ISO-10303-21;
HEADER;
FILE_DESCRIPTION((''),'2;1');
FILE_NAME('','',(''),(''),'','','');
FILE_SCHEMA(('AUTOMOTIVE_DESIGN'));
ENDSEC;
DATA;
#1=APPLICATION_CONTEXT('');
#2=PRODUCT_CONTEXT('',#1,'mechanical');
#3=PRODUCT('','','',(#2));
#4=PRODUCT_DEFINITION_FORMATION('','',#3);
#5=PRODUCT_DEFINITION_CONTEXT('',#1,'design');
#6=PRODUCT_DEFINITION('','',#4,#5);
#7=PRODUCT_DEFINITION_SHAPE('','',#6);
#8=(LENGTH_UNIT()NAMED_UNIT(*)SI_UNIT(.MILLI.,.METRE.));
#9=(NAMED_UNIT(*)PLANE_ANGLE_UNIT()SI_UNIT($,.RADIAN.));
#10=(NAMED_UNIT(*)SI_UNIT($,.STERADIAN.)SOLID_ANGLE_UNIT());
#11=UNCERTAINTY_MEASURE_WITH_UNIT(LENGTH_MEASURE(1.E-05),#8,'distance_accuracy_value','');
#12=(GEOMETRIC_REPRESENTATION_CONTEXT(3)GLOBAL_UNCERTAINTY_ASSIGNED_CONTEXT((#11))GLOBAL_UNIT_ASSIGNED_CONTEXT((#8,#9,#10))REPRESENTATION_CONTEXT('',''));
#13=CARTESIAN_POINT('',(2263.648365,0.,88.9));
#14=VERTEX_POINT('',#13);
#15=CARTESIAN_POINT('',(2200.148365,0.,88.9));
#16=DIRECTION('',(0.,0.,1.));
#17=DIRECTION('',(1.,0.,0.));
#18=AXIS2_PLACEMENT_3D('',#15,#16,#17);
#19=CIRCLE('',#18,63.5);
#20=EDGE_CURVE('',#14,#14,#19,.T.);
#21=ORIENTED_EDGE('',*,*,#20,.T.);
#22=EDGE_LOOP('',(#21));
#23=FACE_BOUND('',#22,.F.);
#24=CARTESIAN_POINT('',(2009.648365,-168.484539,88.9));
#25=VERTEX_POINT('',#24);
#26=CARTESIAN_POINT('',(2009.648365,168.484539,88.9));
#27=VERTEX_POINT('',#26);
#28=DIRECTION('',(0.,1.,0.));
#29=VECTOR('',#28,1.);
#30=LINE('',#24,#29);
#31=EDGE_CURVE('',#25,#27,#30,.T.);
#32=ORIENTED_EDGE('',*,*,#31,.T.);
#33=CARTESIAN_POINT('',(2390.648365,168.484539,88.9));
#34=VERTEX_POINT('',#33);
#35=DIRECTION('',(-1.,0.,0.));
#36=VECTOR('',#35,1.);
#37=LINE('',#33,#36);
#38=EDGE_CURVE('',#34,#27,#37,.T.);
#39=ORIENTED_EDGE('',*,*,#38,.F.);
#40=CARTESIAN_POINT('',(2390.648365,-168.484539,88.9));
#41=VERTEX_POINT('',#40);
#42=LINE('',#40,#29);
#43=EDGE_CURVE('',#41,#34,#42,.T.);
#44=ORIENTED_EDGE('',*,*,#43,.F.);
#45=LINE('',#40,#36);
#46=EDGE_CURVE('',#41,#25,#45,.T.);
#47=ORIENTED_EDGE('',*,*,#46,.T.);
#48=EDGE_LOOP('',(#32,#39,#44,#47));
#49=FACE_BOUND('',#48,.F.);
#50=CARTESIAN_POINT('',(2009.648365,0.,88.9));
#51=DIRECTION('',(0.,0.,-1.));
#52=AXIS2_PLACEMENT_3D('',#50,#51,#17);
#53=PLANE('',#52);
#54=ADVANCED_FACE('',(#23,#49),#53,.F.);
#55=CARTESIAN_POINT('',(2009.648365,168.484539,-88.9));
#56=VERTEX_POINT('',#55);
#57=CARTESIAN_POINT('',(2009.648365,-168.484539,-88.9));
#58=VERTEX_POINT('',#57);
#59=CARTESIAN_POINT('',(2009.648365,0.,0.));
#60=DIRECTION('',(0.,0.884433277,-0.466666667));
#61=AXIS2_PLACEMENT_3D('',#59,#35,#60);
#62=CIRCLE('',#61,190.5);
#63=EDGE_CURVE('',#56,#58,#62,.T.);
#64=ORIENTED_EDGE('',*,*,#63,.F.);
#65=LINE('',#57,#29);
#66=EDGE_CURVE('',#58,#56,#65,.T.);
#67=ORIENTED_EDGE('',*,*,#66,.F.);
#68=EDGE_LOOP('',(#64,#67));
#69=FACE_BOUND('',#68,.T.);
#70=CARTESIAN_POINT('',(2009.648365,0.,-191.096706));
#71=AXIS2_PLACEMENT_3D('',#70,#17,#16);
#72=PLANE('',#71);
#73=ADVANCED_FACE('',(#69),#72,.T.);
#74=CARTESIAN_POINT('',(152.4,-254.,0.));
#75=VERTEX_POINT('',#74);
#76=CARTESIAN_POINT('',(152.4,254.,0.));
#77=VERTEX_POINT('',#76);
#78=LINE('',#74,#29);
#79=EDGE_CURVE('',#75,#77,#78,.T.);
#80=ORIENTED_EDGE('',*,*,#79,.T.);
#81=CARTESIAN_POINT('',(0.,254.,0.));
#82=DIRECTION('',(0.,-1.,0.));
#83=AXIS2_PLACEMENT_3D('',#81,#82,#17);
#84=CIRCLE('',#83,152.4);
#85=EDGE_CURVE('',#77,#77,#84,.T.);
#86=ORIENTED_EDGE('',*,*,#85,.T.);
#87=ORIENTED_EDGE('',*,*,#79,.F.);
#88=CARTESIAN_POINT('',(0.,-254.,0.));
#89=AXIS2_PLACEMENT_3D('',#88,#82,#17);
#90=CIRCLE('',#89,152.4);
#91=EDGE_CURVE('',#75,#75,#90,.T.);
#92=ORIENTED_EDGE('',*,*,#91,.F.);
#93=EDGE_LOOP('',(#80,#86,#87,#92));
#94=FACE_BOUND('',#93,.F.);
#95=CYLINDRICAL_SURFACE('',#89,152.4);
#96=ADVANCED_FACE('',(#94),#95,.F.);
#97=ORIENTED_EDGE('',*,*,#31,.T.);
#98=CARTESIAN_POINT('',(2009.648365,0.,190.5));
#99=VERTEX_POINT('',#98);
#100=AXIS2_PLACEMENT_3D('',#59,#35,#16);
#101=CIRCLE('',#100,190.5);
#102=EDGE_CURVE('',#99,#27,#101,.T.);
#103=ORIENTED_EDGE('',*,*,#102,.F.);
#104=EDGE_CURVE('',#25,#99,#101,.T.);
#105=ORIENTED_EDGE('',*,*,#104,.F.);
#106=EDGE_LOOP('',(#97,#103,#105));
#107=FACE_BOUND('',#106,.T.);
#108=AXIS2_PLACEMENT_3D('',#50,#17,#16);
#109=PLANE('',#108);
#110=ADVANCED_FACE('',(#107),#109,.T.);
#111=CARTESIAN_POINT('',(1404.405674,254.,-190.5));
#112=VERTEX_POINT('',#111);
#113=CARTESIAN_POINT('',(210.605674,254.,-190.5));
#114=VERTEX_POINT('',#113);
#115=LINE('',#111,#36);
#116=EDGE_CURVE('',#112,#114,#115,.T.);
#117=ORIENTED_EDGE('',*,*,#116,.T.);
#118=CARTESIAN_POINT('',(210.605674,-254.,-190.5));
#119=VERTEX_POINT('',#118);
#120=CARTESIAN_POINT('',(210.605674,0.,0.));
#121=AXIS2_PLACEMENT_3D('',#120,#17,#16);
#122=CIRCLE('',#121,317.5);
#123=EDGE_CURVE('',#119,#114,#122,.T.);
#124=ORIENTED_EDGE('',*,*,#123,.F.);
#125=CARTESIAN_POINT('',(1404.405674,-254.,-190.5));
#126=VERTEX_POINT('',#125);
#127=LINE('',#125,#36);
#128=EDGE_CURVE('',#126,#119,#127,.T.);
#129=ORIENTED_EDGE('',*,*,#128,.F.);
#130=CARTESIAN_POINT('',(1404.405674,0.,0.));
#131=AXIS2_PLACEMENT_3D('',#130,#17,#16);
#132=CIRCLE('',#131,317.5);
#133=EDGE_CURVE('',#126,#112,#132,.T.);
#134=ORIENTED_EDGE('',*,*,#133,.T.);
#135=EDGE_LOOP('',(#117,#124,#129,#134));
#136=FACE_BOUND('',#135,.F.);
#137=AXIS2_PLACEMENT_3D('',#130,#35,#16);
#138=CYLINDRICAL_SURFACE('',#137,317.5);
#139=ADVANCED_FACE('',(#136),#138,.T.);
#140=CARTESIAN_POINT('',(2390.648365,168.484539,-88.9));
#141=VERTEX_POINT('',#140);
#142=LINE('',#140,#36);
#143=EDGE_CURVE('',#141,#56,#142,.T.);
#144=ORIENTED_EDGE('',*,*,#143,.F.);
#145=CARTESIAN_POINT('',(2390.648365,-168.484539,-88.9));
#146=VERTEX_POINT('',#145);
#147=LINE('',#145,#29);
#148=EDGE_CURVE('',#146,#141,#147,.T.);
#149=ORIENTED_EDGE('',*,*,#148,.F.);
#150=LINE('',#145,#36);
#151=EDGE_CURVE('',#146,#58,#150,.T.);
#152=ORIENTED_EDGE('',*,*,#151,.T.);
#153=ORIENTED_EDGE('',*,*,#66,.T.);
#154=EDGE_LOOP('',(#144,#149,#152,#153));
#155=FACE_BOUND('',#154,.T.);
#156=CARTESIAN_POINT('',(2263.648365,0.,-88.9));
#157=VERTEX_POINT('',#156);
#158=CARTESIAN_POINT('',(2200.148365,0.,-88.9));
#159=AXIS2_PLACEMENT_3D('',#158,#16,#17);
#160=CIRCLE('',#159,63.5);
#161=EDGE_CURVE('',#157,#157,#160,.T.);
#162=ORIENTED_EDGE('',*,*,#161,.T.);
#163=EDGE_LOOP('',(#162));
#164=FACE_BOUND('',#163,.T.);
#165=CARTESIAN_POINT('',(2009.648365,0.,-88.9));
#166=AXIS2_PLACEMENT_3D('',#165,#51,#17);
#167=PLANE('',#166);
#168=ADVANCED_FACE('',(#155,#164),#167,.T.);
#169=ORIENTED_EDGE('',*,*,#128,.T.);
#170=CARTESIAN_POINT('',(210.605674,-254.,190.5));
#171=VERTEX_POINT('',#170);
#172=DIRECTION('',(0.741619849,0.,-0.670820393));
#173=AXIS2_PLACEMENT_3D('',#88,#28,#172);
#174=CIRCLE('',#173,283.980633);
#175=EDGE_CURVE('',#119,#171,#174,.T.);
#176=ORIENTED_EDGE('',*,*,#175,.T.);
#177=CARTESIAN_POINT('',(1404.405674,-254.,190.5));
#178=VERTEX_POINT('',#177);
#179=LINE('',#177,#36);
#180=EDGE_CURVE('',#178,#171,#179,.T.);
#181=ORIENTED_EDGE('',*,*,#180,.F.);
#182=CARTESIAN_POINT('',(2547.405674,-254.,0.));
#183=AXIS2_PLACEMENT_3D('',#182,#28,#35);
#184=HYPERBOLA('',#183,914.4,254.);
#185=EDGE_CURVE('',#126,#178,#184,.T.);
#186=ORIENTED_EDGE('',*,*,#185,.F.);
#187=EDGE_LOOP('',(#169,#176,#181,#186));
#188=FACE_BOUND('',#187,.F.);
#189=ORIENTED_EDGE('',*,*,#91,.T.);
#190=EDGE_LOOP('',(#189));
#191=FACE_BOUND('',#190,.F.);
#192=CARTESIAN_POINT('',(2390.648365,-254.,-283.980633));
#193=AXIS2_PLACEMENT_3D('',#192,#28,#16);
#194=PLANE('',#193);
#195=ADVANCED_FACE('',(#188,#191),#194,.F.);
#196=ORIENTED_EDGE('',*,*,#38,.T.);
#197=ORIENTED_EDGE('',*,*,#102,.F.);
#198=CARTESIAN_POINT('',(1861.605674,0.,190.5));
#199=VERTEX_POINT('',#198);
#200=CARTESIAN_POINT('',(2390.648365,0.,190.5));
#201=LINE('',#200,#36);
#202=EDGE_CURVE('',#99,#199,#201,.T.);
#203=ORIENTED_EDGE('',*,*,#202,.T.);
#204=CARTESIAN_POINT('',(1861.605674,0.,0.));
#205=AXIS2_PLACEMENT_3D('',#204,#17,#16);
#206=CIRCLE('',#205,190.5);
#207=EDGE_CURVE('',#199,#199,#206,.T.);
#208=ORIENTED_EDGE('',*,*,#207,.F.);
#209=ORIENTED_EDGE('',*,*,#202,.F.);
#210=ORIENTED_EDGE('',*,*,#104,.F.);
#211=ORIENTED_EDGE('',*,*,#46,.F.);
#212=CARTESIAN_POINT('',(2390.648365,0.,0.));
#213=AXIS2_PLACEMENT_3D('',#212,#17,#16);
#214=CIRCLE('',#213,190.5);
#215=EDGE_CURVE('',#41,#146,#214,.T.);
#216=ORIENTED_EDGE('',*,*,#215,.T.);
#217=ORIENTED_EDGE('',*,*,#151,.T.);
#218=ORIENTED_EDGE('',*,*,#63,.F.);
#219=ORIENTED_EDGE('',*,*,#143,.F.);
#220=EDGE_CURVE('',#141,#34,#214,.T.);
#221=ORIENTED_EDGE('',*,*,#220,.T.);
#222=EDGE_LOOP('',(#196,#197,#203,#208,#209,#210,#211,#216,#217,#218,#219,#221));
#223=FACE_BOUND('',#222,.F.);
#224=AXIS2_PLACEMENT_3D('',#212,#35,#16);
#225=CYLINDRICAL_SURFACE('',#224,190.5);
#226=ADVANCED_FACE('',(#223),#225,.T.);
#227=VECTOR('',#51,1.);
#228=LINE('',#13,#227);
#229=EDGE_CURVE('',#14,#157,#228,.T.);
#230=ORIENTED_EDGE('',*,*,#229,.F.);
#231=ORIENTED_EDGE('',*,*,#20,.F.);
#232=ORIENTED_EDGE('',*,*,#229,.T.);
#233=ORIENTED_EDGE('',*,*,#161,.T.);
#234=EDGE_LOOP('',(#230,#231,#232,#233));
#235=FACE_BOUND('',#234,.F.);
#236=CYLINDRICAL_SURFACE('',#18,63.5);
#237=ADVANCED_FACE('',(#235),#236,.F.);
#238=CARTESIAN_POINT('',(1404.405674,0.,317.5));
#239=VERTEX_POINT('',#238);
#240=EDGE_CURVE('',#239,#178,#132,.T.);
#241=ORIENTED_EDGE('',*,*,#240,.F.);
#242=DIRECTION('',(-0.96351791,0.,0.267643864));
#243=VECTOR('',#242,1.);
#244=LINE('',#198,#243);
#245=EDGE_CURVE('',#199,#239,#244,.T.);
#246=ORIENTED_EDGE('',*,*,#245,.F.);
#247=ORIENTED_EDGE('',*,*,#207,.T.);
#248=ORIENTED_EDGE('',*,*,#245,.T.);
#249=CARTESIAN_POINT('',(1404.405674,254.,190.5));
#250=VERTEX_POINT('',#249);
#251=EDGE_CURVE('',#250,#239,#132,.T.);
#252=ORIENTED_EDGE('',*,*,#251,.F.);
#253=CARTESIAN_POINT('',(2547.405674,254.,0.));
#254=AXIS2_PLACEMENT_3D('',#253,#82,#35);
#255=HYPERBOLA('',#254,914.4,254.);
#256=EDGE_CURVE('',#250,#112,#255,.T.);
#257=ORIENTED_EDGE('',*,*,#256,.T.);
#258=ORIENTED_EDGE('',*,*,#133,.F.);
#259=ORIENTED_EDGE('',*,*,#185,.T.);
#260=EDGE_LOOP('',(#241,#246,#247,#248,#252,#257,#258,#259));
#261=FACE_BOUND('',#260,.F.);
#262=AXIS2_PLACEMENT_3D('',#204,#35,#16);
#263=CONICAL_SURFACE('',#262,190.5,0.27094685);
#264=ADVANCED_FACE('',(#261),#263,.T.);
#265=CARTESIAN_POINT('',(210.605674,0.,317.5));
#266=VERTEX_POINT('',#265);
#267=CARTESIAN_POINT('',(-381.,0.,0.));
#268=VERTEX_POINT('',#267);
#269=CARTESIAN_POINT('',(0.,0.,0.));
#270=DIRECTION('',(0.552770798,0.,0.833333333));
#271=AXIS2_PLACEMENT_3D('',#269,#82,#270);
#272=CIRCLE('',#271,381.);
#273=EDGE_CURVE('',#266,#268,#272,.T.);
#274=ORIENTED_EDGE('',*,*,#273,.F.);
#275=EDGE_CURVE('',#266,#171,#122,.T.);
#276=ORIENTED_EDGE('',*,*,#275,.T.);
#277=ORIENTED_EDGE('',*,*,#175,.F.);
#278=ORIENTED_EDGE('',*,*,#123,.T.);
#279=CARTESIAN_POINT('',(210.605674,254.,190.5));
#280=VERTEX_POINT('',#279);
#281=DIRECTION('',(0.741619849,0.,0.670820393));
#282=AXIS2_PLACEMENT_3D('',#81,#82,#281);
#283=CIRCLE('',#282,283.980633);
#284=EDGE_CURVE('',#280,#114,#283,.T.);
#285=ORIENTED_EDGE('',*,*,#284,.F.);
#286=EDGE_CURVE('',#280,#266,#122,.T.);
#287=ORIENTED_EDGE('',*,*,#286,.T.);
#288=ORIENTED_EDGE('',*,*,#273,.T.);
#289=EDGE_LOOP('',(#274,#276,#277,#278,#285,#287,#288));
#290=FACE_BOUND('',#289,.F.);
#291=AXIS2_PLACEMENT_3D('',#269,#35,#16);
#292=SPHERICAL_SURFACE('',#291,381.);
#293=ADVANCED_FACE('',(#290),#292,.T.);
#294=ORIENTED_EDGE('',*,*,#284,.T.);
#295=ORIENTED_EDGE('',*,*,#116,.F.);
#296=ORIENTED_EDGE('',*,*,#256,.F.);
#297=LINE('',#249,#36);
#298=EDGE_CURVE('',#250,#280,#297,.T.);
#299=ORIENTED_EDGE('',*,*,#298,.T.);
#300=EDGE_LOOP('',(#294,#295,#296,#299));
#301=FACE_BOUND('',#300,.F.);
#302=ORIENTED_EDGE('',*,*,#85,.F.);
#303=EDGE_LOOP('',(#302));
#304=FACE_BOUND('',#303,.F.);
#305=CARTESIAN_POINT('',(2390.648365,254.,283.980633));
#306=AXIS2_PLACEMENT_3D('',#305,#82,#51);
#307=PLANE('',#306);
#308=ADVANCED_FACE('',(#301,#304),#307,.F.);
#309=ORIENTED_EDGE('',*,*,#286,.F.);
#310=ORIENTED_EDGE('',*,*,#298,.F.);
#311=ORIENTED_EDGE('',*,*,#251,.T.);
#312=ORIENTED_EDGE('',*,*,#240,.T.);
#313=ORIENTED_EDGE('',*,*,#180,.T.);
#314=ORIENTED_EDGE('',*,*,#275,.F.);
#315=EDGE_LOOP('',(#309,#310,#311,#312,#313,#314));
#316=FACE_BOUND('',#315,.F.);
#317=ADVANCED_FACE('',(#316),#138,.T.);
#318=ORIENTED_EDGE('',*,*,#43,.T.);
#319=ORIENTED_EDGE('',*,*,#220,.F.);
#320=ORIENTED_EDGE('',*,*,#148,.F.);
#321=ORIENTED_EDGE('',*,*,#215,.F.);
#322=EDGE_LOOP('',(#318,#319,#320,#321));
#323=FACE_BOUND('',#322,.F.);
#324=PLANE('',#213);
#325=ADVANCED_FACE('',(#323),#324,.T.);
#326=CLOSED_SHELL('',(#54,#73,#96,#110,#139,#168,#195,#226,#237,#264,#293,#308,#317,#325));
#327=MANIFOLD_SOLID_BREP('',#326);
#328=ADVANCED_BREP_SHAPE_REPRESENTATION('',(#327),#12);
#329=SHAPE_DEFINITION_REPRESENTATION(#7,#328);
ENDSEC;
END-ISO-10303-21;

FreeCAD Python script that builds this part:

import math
import FreeCAD as App
import Part
import Sketcher
from FreeCAD import Vector
Q = App.Units.Quantity

doc = App.newDocument("Part")
body = doc.addObject("PartDesign::Body", "Body")

# Sketch on XZ plane
sketch1 = body.newObject("Sketcher::SketchObject", "Sketch")
sketch1.AttachmentSupport = (doc.getObject("XZ_Plane"), [""])
sketch1.MapMode = "FlatFace"
sketch1.addGeometry(Part.ArcOfCircle(Part.Circle(Vector(0, 0, 0), Vector(0, 0, 1), 381), math.radians(56.44269), math.radians(180)), False)
sketch1.addGeometry(Part.LineSegment(Vector(-381, 0, 0), Vector(2390.648365, 0, 0)), False)
sketch1.addGeometry(Part.LineSegment(Vector(2390.648365, 0, 0), Vector(2390.648365, 190.5, 0)), False)
sketch1.addGeometry(Part.LineSegment(Vector(2390.648365, 190.5, 0), Vector(1861.605674, 190.5, 0)), False)
sketch1.addGeometry(Part.LineSegment(Vector(1861.605674, 190.5, 0), Vector(1404.405674, 317.5, 0)), False)
sketch1.addGeometry(Part.LineSegment(Vector(1404.405674, 317.5, 0), Vector(210.605674, 317.5, 0)), False)
sketch1.addConstraint(Sketcher.Constraint("Coincident", 0, 2, 1, 1))
sketch1.addConstraint(Sketcher.Constraint("Coincident", 1, 2, 2, 1))
sketch1.addConstraint(Sketcher.Constraint("Coincident", 2, 2, 3, 1))
sketch1.addConstraint(Sketcher.Constraint("Coincident", 3, 2, 4, 1))
sketch1.addConstraint(Sketcher.Constraint("Coincident", 4, 2, 5, 1))
sketch1.addConstraint(Sketcher.Constraint("Coincident", 5, 2, 0, 1))
sketch1.addConstraint(Sketcher.Constraint("Horizontal", 1))
sketch1.addConstraint(Sketcher.Constraint("Vertical", 2))
sketch1.addConstraint(Sketcher.Constraint("Horizontal", 3))
sketch1.addConstraint(Sketcher.Constraint("Horizontal", 5))
sketch1.addConstraint(Sketcher.Constraint("Coincident", 0, 3, -1, 1))
sketch1.addConstraint(Sketcher.Constraint("PointOnObject", 1, 2, -1))
sketch1.addConstraint(Sketcher.Constraint("Radius", 0, Q("15 in")))
sketch1.addConstraint(Sketcher.Constraint("DistanceX", 5, 2, 5, 1, Q("47 in")))
sketch1.addConstraint(Sketcher.Constraint("DistanceY", 2, 1, 2, 2, Q("7.5 in")))
sketch1.addConstraint(Sketcher.Constraint("DistanceX", 4, 2, 3, 2, Q("18 in")))
sketch1.addConstraint(Sketcher.Constraint("DistanceY", 3, 2, 4, 2, Q("5 in")))
sketch1.addConstraint(Sketcher.Constraint("DistanceX", 3, 2, 3, 1, Q("529.042691 mm")))
revolution = body.newObject("PartDesign::Revolution", "Revolution")
revolution.Profile = sketch1
revolution.ReferenceAxis = (sketch1, ["H_Axis"])
revolution.Angle = 360

# Sketch on XZ plane
sketch2 = body.newObject("Sketcher::SketchObject", "Sketch001")
sketch2.AttachmentSupport = (doc.getObject("XZ_Plane"), [""])
sketch2.MapMode = "FlatFace"
sketch2.addGeometry(Part.LineSegment(Vector(2009.648365, 191.096706, 0), Vector(2009.648365, 88.9, 0)), False)
sketch2.addGeometry(Part.LineSegment(Vector(2009.648365, 88.9, 0), Vector(2390.648365, 88.9, 0)), False)
sketch2.addGeometry(Part.LineSegment(Vector(2390.648365, 88.9, 0), Vector(2390.648365, 191.096706, 0)), False)
sketch2.addGeometry(Part.LineSegment(Vector(2390.648365, 191.096706, 0), Vector(2009.648365, 191.096706, 0)), False)
sketch2.addGeometry(Part.LineSegment(Vector(2009.648365, -88.9, 0), Vector(2009.648365, -191.096706, 0)), False)
sketch2.addGeometry(Part.LineSegment(Vector(2009.648365, -191.096706, 0), Vector(2390.648365, -191.096706, 0)), False)
sketch2.addGeometry(Part.LineSegment(Vector(2390.648365, -191.096706, 0), Vector(2390.648365, -88.9, 0)), False)
sketch2.addGeometry(Part.LineSegment(Vector(2390.648365, -88.9, 0), Vector(2009.648365, -88.9, 0)), False)
sketch2.addConstraint(Sketcher.Constraint("Coincident", 0, 2, 1, 1))
sketch2.addConstraint(Sketcher.Constraint("Coincident", 1, 2, 2, 1))
sketch2.addConstraint(Sketcher.Constraint("Coincident", 2, 2, 3, 1))
sketch2.addConstraint(Sketcher.Constraint("Coincident", 3, 2, 0, 1))
sketch2.addConstraint(Sketcher.Constraint("Coincident", 4, 2, 5, 1))
sketch2.addConstraint(Sketcher.Constraint("Coincident", 5, 2, 6, 1))
sketch2.addConstraint(Sketcher.Constraint("Coincident", 6, 2, 7, 1))
sketch2.addConstraint(Sketcher.Constraint("Coincident", 7, 2, 4, 1))
sketch2.addConstraint(Sketcher.Constraint("Vertical", 0))
sketch2.addConstraint(Sketcher.Constraint("Horizontal", 1))
sketch2.addConstraint(Sketcher.Constraint("Vertical", 2))
sketch2.addConstraint(Sketcher.Constraint("Horizontal", 3))
sketch2.addConstraint(Sketcher.Constraint("Vertical", 4))
sketch2.addConstraint(Sketcher.Constraint("Horizontal", 5))
sketch2.addConstraint(Sketcher.Constraint("Vertical", 6))
sketch2.addConstraint(Sketcher.Constraint("Horizontal", 7))
sketch2.addConstraint(Sketcher.Constraint("Symmetric", 3, 2, 4, 2, -1))
sketch2.addConstraint(Sketcher.Constraint("Symmetric", 1, 2, 6, 2, -1))
sketch2.addConstraint(Sketcher.Constraint("DistanceX", 1, 1, 1, 2, Q("15 in")))
sketch2.addConstraint(Sketcher.Constraint("DistanceY", 6, 2, 1, 2, Q("7 in")))
sketch2.addConstraint(Sketcher.Constraint("DistanceY", 0, 2, 0, 1, Q("102.196706 mm")))
sketch2.addConstraint(Sketcher.Constraint("DistanceX", -1, 1, 0, 2, Q("2009.648365 mm")))
pocket1 = body.newObject("PartDesign::Pocket", "Pocket")
pocket1.Profile = sketch2
pocket1.Type = "ThroughAll"
pocket1.Midplane = True

# Sketch on YZ plane
sketch3 = body.newObject("Sketcher::SketchObject", "Sketch002")
sketch3.AttachmentSupport = (doc.getObject("YZ_Plane"), [""])
sketch3.MapMode = "FlatFace"
sketch3.AttachmentOffset = App.Placement(Vector(0, 0, 2390.648365), App.Rotation())
sketch3.addGeometry(Part.LineSegment(Vector(-254, -283.980633, 0), Vector(-254, 283.980633, 0)), False)
sketch3.addGeometry(Part.ArcOfCircle(Part.Circle(Vector(0, 0, 0), Vector(0, 0, 1), 381), math.radians(131.810315), math.radians(228.189685)), False)
sketch3.addGeometry(Part.LineSegment(Vector(254, 283.980633, 0), Vector(254, -283.980633, 0)), False)
sketch3.addGeometry(Part.ArcOfCircle(Part.Circle(Vector(0, 0, 0), Vector(0, 0, 1), 381), math.radians(-48.189685), math.radians(48.189685)), False)
sketch3.addConstraint(Sketcher.Constraint("Coincident", 0, 1, 1, 2))
sketch3.addConstraint(Sketcher.Constraint("Coincident", 1, 1, 0, 2))
sketch3.addConstraint(Sketcher.Constraint("Coincident", 2, 1, 3, 2))
sketch3.addConstraint(Sketcher.Constraint("Coincident", 3, 1, 2, 2))
sketch3.addConstraint(Sketcher.Constraint("Vertical", 0))
sketch3.addConstraint(Sketcher.Constraint("Vertical", 2))
sketch3.addConstraint(Sketcher.Constraint("Coincident", 1, 3, -1, 1))
sketch3.addConstraint(Sketcher.Constraint("Coincident", 3, 3, -1, 1))
sketch3.addConstraint(Sketcher.Constraint("Equal", 1, 3))
sketch3.addConstraint(Sketcher.Constraint("Horizontal", 1, 1, 2, 1))
sketch3.addConstraint(Sketcher.Constraint("Radius", 1, Q("15 in")))
sketch3.addConstraint(Sketcher.Constraint("DistanceX", 0, 1, -1, 1, Q("10 in")))
pocket2 = body.newObject("PartDesign::Pocket", "Pocket001")
pocket2.Profile = sketch3
pocket2.Type = "ThroughAll"

# Sketch on XZ plane
sketch4 = body.newObject("Sketcher::SketchObject", "Sketch003")
sketch4.AttachmentSupport = (doc.getObject("XZ_Plane"), [""])
sketch4.MapMode = "FlatFace"
sketch4.AttachmentOffset = App.Placement(Vector(0, 0, 10 * 25.4), App.Rotation())
sketch4.addGeometry(Part.Circle(Vector(0, 0, 0), Vector(0, 0, 1), 152.4), False)
sketch4.addConstraint(Sketcher.Constraint("Coincident", 0, 3, -1, 1))
sketch4.addConstraint(Sketcher.Constraint("Diameter", 0, Q("12 in")))
pocket3 = body.newObject("PartDesign::Pocket", "Pocket002")
pocket3.Profile = sketch4
pocket3.Type = "ThroughAll"

# Sketch on XY plane
sketch5 = body.newObject("Sketcher::SketchObject", "Sketch004")
sketch5.AttachmentSupport = (doc.getObject("XY_Plane"), [""])
sketch5.MapMode = "FlatFace"
sketch5.AttachmentOffset = App.Placement(Vector(0, 0, 3.5 * 25.4), App.Rotation())
sketch5.addGeometry(Part.Circle(Vector(2200.148365, 0, 0), Vector(0, 0, 1), 63.5), False)
sketch5.addConstraint(Sketcher.Constraint("PointOnObject", 0, 3, -1))
sketch5.addConstraint(Sketcher.Constraint("Diameter", 0, Q("5 in")))
sketch5.addConstraint(Sketcher.Constraint("DistanceX", -1, 1, 0, 3, Q("2200.148365 mm")))
pocket4 = body.newObject("PartDesign::Pocket", "Pocket003")
pocket4.Profile = sketch5
pocket4.Type = "ThroughAll"

doc.recompute()
